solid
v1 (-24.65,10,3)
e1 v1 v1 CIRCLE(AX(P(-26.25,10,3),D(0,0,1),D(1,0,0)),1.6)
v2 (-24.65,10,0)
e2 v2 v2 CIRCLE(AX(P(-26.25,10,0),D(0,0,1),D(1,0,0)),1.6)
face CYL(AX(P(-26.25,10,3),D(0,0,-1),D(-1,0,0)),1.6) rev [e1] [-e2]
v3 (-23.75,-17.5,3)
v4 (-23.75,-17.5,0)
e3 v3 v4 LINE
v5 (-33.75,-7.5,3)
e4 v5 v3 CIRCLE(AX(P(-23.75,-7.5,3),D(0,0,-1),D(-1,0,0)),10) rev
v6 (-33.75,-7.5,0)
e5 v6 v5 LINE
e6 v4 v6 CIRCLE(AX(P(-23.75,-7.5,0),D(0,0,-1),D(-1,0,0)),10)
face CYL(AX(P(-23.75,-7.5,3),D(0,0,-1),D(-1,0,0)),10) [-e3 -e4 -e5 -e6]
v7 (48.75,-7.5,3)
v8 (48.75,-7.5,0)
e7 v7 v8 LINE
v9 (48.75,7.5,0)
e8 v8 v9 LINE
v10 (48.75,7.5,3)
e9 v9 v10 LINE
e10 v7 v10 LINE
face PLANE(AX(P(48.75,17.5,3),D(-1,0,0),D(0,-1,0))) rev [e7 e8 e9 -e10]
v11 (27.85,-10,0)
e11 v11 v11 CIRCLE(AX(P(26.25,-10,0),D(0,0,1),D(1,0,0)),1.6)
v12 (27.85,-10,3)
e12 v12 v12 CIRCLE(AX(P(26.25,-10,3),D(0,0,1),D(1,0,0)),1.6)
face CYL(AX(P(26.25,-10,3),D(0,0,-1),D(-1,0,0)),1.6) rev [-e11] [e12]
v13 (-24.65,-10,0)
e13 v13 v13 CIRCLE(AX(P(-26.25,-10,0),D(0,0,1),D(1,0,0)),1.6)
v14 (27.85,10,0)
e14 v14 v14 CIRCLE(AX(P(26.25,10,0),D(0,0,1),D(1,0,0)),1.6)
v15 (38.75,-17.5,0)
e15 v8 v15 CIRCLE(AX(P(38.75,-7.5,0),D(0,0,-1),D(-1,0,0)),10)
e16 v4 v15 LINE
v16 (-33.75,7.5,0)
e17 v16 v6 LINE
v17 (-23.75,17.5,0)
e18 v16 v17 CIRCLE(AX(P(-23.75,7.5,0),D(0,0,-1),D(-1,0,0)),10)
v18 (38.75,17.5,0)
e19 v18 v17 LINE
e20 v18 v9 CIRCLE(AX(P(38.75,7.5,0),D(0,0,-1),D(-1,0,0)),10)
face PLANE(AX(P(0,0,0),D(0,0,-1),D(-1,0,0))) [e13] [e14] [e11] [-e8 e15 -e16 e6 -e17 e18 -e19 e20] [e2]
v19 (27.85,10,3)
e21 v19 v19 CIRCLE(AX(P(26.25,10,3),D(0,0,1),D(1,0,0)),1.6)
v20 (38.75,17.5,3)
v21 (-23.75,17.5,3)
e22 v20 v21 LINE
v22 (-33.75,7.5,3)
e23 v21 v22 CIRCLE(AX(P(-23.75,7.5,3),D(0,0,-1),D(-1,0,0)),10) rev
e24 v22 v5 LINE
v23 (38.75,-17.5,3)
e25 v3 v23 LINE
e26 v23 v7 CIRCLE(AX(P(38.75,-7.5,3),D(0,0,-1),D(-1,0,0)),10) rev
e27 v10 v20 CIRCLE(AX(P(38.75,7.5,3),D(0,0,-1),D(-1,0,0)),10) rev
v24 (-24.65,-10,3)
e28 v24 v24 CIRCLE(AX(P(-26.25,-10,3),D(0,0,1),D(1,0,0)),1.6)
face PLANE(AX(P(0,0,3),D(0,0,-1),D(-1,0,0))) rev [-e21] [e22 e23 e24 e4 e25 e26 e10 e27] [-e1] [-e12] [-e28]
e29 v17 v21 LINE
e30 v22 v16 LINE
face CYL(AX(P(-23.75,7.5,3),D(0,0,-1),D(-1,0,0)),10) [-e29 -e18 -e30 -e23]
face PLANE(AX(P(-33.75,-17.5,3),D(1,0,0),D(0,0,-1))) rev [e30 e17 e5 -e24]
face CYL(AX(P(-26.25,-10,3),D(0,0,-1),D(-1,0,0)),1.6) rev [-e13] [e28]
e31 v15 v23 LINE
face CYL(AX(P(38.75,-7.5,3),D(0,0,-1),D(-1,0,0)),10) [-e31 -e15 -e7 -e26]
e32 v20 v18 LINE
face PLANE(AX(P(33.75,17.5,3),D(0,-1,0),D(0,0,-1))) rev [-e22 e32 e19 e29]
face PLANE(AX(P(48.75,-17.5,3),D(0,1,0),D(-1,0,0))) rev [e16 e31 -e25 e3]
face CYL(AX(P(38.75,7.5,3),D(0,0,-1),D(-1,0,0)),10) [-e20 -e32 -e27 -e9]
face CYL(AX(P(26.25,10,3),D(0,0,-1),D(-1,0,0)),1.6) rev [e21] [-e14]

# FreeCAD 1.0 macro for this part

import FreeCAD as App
import Part
import Sketcher
from FreeCAD import Vector


def edges_at(feature, points):
    """Names of the edges that pass closest to the given points."""
    edges = feature.Shape.Edges
    near = lambda p: min(range(len(edges)), key=lambda i: edges[i].distToShape(Part.Vertex(*p))[0])
    return sorted({f"Edge{near(p) + 1}" for p in points})

doc = App.newDocument("Part")
body = doc.addObject("PartDesign::Body", "Body")

# Sketch on XY plane
sketch1 = body.newObject("Sketcher::SketchObject", "Sketch")
sketch1.AttachmentSupport = (doc.getObject("XY_Plane"), [""])
sketch1.MapMode = "FlatFace"
sketch1.addGeometry([
    Part.LineSegment(Vector(48.8, 17.5, 0), Vector(-33.8, 17.5, 0)),  # 0
    Part.LineSegment(Vector(-33.8, 17.5, 0), Vector(-33.8, -17.5, 0)),  # 1
    Part.LineSegment(Vector(-33.8, -17.5, 0), Vector(48.8, -17.5, 0)),  # 2
    Part.LineSegment(Vector(48.8, -17.5, 0), Vector(48.8, 17.5, 0)),  # 3
    Part.Circle(Vector(26.2, -10, 0), Vector(0, 0, 1), 1.6),  # 4
    Part.Circle(Vector(-26.2, -10, 0), Vector(0, 0, 1), 1.6),  # 5
    Part.Circle(Vector(26.2, 10, 0), Vector(0, 0, 1), 1.6),  # 6
    Part.Circle(Vector(-26.2, 10, 0), Vector(0, 0, 1), 1.6),  # 7
], False)
sketch1.addConstraint([
    Sketcher.Constraint("Coincident", 0, 2, 1, 1),
    Sketcher.Constraint("Coincident", 1, 2, 2, 1),
    Sketcher.Constraint("Coincident", 2, 2, 3, 1),
    Sketcher.Constraint("Coincident", 3, 2, 0, 1),
    Sketcher.Constraint("Horizontal", 0),
    Sketcher.Constraint("Vertical", 1),
    Sketcher.Constraint("Horizontal", 2),
    Sketcher.Constraint("Vertical", 3),
    Sketcher.Constraint("Equal", 4, 5),
    Sketcher.Constraint("Equal", 5, 6),
    Sketcher.Constraint("Equal", 6, 7),
    Sketcher.Constraint("Symmetric", 5, 3, 6, 3, -1, 1),
    Sketcher.Constraint("Symmetric", 4, 3, 7, 3, -1, 1),
    Sketcher.Constraint("Symmetric", 4, 3, 5, 3, -2),
    Sketcher.Constraint("Diameter", 4, 3.2),
    Sketcher.Constraint("DistanceY", 1, 2, 1, 1, 35.0),
    Sketcher.Constraint("DistanceX", 0, 2, 0, 1, 82.5),
    Sketcher.Constraint("DistanceY", 4, 3, -1, 1, 10.0),
    Sketcher.Constraint("DistanceX", 0, 2, 6, 3, 60.0),
    Sketcher.Constraint("DistanceX", 5, 3, 2, 2, 75.0),
    Sketcher.Constraint("DistanceY", -1, 1, 0, 2, 17.5),
])
pad1 = body.newObject("PartDesign::Pad", "Pad")
pad1.Profile = sketch1
pad1.Length = 3
doc.recompute()

fillet = body.newObject("PartDesign::Fillet", "Fillet")
fillet.Base = (pad1, edges_at(pad1, [
    (48.75, 17.5, 1.5),
    (48.75, -17.5, 1.5),
    (-33.75, -17.5, 1.5),
    (-33.75, 17.5, 1.5),
]))
fillet.Radius = 10

doc.recompute()
